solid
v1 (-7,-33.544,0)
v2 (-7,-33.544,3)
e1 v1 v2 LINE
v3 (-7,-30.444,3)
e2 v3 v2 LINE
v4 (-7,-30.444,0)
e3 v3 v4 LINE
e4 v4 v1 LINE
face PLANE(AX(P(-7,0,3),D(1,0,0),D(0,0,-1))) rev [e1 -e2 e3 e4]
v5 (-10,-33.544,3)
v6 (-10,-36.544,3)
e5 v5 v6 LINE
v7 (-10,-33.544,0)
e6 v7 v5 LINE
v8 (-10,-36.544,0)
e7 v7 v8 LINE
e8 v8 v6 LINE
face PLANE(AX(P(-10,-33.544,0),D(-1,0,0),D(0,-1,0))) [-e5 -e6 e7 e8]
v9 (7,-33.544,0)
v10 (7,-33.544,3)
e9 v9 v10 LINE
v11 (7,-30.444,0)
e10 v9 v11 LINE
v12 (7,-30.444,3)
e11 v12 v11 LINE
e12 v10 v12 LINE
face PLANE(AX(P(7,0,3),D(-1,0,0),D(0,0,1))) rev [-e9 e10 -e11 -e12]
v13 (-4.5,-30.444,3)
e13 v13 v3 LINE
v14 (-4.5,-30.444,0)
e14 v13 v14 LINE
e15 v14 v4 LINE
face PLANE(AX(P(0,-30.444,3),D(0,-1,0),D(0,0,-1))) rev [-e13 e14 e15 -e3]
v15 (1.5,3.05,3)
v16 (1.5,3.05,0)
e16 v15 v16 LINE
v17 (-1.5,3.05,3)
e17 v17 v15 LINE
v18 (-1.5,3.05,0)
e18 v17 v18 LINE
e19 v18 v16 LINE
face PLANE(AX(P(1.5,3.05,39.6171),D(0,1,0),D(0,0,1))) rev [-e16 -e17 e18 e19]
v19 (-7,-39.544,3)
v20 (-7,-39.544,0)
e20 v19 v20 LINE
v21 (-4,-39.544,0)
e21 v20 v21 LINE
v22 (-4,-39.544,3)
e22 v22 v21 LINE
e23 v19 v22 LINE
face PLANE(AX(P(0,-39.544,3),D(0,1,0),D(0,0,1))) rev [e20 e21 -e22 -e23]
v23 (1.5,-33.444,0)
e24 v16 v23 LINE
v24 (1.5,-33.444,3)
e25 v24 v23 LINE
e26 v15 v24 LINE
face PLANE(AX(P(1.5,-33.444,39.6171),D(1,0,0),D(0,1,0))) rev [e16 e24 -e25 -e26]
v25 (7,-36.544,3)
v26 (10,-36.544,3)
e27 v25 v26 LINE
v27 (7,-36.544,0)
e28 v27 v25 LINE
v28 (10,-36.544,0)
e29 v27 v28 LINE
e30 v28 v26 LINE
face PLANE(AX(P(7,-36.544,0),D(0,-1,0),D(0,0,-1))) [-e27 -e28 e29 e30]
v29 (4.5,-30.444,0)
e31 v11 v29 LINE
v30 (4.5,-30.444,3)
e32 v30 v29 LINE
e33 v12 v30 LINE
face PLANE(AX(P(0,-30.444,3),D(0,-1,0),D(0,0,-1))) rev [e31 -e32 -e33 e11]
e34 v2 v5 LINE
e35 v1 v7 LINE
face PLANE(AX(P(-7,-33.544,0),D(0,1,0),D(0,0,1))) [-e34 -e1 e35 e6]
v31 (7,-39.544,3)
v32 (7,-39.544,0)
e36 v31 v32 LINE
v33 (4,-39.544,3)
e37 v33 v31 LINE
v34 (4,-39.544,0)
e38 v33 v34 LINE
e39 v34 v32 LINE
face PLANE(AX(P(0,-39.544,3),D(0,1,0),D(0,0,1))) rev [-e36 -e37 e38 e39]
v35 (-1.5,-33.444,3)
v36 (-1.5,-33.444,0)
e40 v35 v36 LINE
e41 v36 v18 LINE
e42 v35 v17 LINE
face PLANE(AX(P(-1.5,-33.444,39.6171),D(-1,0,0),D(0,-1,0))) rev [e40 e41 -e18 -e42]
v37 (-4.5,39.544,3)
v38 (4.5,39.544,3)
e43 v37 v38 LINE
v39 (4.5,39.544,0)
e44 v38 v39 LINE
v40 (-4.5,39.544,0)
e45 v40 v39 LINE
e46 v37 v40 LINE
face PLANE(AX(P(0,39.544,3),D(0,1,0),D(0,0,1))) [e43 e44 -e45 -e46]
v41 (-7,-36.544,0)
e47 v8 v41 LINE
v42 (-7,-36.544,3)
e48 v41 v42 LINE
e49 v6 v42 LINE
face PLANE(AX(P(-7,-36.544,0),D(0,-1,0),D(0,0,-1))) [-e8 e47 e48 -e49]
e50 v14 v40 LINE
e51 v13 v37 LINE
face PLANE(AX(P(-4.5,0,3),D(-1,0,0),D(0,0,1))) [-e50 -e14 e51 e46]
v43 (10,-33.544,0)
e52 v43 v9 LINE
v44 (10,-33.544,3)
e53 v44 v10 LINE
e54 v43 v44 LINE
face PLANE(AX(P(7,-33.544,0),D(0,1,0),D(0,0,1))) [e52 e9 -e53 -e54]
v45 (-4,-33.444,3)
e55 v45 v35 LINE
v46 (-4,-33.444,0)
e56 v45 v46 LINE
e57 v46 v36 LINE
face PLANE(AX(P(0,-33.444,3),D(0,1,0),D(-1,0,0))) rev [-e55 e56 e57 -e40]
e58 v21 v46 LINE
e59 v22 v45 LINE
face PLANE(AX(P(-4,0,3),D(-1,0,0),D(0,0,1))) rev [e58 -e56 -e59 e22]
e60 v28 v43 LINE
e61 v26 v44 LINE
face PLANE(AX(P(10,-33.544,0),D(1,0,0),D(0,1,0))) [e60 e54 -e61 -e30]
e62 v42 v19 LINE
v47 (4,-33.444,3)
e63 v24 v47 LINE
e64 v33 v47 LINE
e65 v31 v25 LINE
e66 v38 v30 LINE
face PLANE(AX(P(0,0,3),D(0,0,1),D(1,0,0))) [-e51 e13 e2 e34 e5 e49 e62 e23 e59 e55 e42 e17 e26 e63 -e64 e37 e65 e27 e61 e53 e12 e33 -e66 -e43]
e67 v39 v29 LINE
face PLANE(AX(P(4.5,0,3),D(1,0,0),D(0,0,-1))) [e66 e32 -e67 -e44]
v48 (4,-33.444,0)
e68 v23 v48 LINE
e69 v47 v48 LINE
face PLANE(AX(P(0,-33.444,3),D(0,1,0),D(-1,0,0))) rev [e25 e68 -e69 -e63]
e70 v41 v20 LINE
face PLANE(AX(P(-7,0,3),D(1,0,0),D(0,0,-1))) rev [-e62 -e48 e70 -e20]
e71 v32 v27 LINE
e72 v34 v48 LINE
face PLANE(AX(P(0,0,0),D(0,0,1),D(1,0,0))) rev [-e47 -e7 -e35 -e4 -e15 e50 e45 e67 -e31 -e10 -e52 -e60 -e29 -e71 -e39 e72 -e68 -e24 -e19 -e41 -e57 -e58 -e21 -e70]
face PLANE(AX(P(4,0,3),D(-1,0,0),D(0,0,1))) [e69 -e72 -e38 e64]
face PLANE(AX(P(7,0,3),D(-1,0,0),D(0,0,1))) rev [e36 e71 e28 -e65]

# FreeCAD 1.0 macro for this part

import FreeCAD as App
import Part
import Sketcher
from FreeCAD import Vector

doc = App.newDocument("Part")
params = doc.addObject("Spreadsheet::Sheet", "Params")
for row, (alias, value) in enumerate([
    ("sketch1_width", "9 mm"),
    ("sketch1_width2", "3 mm"),
    ("sketch1_width3", "8 mm"),
    ("sketch1_height", "9.1 mm"),
    ("sketch1_height2", "6.1 mm"),
    ("pad1_length", "3 mm"),
    ("sketch2_width", "3 mm"),
    ("pocket1_length", "3 mm"),
    ("sketch3_width", "3 mm"),
    ("pad2_length", "3 mm"),
], start=1):
    params.set(f"A{row}", alias)
    params.set(f"B{row}", "=" + value)
    params.setAlias(f"B{row}", alias)

body = doc.addObject("PartDesign::Body", "Body")

sketch1 = doc.addObject("Sketcher::SketchObject", "Sketch")
body.addObject(sketch1)
sketch1.AttachmentSupport = (doc.XY_Plane, [""])
sketch1.MapMode = "FlatFace"
sketch1.addGeometry([
    Part.LineSegment(Vector(4.5, 39.5, 0), Vector(-4.5, 39.5, 0)),
    Part.LineSegment(Vector(-4.5, 39.5, 0), Vector(-4.5, -30.4, 0)),
    Part.LineSegment(Vector(-4.5, -30.4, 0), Vector(-7, -30.4, 0)),
    Part.LineSegment(Vector(-7, -30.4, 0), Vector(-7, -39.5, 0)),
    Part.LineSegment(Vector(-7, -39.5, 0), Vector(-4, -39.5, 0)),
    Part.LineSegment(Vector(-4, -39.5, 0), Vector(-4, -33.4, 0)),
    Part.LineSegment(Vector(-4, -33.4, 0), Vector(4, -33.4, 0)),
    Part.LineSegment(Vector(4, -33.4, 0), Vector(4, -39.5, 0)),
    Part.LineSegment(Vector(4, -39.5, 0), Vector(7, -39.5, 0)),
    Part.LineSegment(Vector(7, -39.5, 0), Vector(7, -30.4, 0)),
    Part.LineSegment(Vector(7, -30.4, 0), Vector(4.5, -30.4, 0)),
    Part.LineSegment(Vector(4.5, -30.4, 0), Vector(4.5, 39.5, 0)),
], False)
sketch1.addConstraint([
    Sketcher.Constraint("Coincident", 0, 2, 1, 1),
    Sketcher.Constraint("Coincident", 1, 2, 2, 1),
    Sketcher.Constraint("Coincident", 2, 2, 3, 1),
    Sketcher.Constraint("Coincident", 3, 2, 4, 1),
    Sketcher.Constraint("Coincident", 4, 2, 5, 1),
    Sketcher.Constraint("Coincident", 5, 2, 6, 1),
    Sketcher.Constraint("Coincident", 6, 2, 7, 1),
    Sketcher.Constraint("Coincident", 7, 2, 8, 1),
    Sketcher.Constraint("Coincident", 8, 2, 9, 1),
    Sketcher.Constraint("Coincident", 9, 2, 10, 1),
    Sketcher.Constraint("Coincident", 10, 2, 11, 1),
    Sketcher.Constraint("Coincident", 11, 2, 0, 1),
    Sketcher.Constraint("Horizontal", 0),
    Sketcher.Constraint("Vertical", 1),
    Sketcher.Constraint("Horizontal", 2),
    Sketcher.Constraint("Vertical", 3),
    Sketcher.Constraint("Horizontal", 4),
    Sketcher.Constraint("Vertical", 5),
    Sketcher.Constraint("Horizontal", 6),
    Sketcher.Constraint("Vertical", 7),
    Sketcher.Constraint("Horizontal", 8),
    Sketcher.Constraint("Vertical", 9),
    Sketcher.Constraint("Horizontal", 10),
    Sketcher.Constraint("Vertical", 11),
    Sketcher.Constraint("Symmetric", 4, 2, 7, 2, -2),
    Sketcher.Constraint("Symmetric", 2, 2, 9, 2, -2),
    Sketcher.Constraint("Equal", 2, 10),
    Sketcher.Constraint("DistanceX", 0, 2, 0, 1, 9.0),
    Sketcher.Constraint("DistanceX", 4, 1, 4, 2, 3.0),
    Sketcher.Constraint("DistanceX", 6, 1, 6, 2, 8.0),
    Sketcher.Constraint("DistanceY", 3, 2, 3, 1, 9.1),
    Sketcher.Constraint("DistanceY", 5, 1, 5, 2, 6.1),
    Sketcher.Constraint("DistanceY", 1, 2, 1, 1, 69.988),
    Sketcher.Constraint("DistanceY", -1, 1, 0, 2, 39.544),
])
sketch1.setExpression("Constraints[27]", "Params.sketch1_width")
sketch1.setExpression("Constraints[28]", "Params.sketch1_width2")
sketch1.setExpression("Constraints[29]", "Params.sketch1_width3")
sketch1.setExpression("Constraints[30]", "Params.sketch1_height")
sketch1.setExpression("Constraints[31]", "Params.sketch1_height2")
pad1 = doc.addObject("PartDesign::Pad", "Pad")
body.addObject(pad1)
pad1.Profile = sketch1
pad1.setExpression("Length", "Params.pad1_length")

sketch2 = doc.addObject("Sketcher::SketchObject", "Sketch001")
body.addObject(sketch2)
sketch2.AttachmentSupport = (doc.XY_Plane, [""])
sketch2.MapMode = "FlatFace"
sketch2.addGeometry([
    Part.LineSegment(Vector(1.5, 3, 0), Vector(1.5, -33.4, 0)),
    Part.LineSegment(Vector(1.5, -33.4, 0), Vector(-1.5, -33.4, 0)),
    Part.LineSegment(Vector(-1.5, -33.4, 0), Vector(-1.5, 3, 0)),
    Part.LineSegment(Vector(-1.5, 3, 0), Vector(1.5, 3, 0)),
], False)
sketch2.addConstraint([
    Sketcher.Constraint("Coincident", 0, 2, 1, 1),
    Sketcher.Constraint("Coincident", 1, 2, 2, 1),
    Sketcher.Constraint("Coincident", 2, 2, 3, 1),
    Sketcher.Constraint("Coincident", 3, 2, 0, 1),
    Sketcher.Constraint("Vertical", 0),
    Sketcher.Constraint("Horizontal", 1),
    Sketcher.Constraint("Vertical", 2),
    Sketcher.Constraint("Horizontal", 3),
    Sketcher.Constraint("DistanceX", 1, 2, 1, 1, 3.0),
    Sketcher.Constraint("DistanceX", -1, 1, 0, 2, 1.5),
    Sketcher.Constraint("DistanceY", 0, 2, 0, 1, 36.494),
    Sketcher.Constraint("DistanceY", -1, 1, 2, 2, 3.05),
])
sketch2.setExpression("Constraints[8]", "Params.sketch2_width")
pocket1 = doc.addObject("PartDesign::Pocket", "Pocket")
body.addObject(pocket1)
pocket1.Profile = sketch2
pocket1.setExpression("Length", "Params.pocket1_length")
pocket1.Reversed = True

sketch3 = doc.addObject("Sketcher::SketchObject", "Sketch002")
body.addObject(sketch3)
sketch3.AttachmentSupport = (doc.XY_Plane, [""])
sketch3.MapMode = "FlatFace"
sketch3.AttachmentOffset = App.Placement(Vector(0, 0, 3), App.Rotation())
sketch3.addGeometry([
    Part.LineSegment(Vector(-10, -33.5, 0), Vector(-10, -36.5, 0)),
    Part.LineSegment(Vector(-10, -36.5, 0), Vector(-7, -36.5, 0)),
    Part.LineSegment(Vector(-7, -36.5, 0), Vector(-7, -33.5, 0)),
    Part.LineSegment(Vector(-7, -33.5, 0), Vector(-10, -33.5, 0)),
    Part.LineSegment(Vector(7, -33.5, 0), Vector(7, -36.5, 0)),
    Part.LineSegment(Vector(7, -36.5, 0), Vector(10, -36.5, 0)),
    Part.LineSegment(Vector(10, -36.5, 0), Vector(10, -33.5, 0)),
    Part.LineSegment(Vector(10, -33.5, 0), Vector(7, -33.5, 0)),
], False)
sketch3.addConstraint([
    Sketcher.Constraint("Coincident", 0, 2, 1, 1),
    Sketcher.Constraint("Coincident", 1, 2, 2, 1),
    Sketcher.Constraint("Coincident", 2, 2, 3, 1),
    Sketcher.Constraint("Coincident", 3, 2, 0, 1),
    Sketcher.Constraint("Coincident", 4, 2, 5, 1),
    Sketcher.Constraint("Coincident", 5, 2, 6, 1),
    Sketcher.Constraint("Coincident", 6, 2, 7, 1),
    Sketcher.Constraint("Coincident", 7, 2, 4, 1),
    Sketcher.Constraint("Vertical", 0),
    Sketcher.Constraint("Horizontal", 1),
    Sketcher.Constraint("Vertical", 2),
    Sketcher.Constraint("Horizontal", 3),
    Sketcher.Constraint("Vertical", 4),
    Sketcher.Constraint("Horizontal", 5),
    Sketcher.Constraint("Vertical", 6),
    Sketcher.Constraint("Horizontal", 7),
    Sketcher.Constraint("Symmetric", 1, 2, 4, 2, -2),
    Sketcher.Constraint("Symmetric", 3, 2, 6, 2, -2),
    Sketcher.Constraint("Equal", 7, 0),
    Sketcher.Constraint("DistanceX", 1, 1, 1, 2, 3.0),
    Sketcher.Constraint("DistanceX", 0, 2, -1, 1, 10.0),
    Sketcher.Constraint("DistanceY", 0, 2, -1, 1, 36.544),
])
sketch3.setExpression("Constraints[19]", "Params.sketch3_width")
pad2 = doc.addObject("PartDesign::Pad", "Pad001")
body.addObject(pad2)
pad2.Profile = sketch3
pad2.setExpression("Length", "Params.pad2_length")
pad2.Reversed = True

doc.recompute()
